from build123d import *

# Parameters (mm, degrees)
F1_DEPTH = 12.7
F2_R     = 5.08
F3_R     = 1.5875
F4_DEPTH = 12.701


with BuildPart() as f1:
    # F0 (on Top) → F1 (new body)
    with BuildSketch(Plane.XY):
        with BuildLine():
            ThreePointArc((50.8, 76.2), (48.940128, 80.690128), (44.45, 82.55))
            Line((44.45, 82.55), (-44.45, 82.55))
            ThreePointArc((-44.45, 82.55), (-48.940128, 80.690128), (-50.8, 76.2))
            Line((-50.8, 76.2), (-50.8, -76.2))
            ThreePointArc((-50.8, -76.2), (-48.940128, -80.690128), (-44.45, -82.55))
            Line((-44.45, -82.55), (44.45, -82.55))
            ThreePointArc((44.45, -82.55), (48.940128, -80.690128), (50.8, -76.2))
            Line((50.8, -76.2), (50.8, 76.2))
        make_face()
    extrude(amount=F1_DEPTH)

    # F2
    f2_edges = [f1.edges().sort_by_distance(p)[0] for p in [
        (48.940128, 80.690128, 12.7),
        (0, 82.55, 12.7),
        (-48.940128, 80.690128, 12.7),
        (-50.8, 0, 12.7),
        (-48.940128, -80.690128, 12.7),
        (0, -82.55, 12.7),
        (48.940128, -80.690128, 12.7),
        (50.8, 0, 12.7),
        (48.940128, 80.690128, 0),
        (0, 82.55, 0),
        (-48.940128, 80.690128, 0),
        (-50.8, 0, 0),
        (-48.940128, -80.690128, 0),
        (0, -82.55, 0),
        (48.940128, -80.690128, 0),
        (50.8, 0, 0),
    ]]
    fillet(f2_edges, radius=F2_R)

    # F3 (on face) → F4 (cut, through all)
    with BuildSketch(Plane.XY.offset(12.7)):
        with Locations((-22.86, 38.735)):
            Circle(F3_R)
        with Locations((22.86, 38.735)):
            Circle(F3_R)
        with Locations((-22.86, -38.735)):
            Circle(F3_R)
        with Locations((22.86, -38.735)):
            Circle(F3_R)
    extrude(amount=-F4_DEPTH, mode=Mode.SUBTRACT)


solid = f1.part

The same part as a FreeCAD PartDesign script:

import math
import FreeCAD as App
import Part
import Sketcher
Q = App.Units.Quantity


def edges_at(feature, points):
    """Names of the edges that pass closest to the given points."""
    edges = feature.Shape.Edges
    near = lambda p: min(range(len(edges)), key=lambda i: edges[i].distToShape(Part.Vertex(*p))[0])
    return sorted({f"Edge{near(p) + 1}" for p in points})

doc = App.newDocument("Part")
body = doc.addObject("PartDesign::Body", "Body")

# Sketch on XY plane
sketch1 = body.newObject("Sketcher::SketchObject", "Sketch")
sketch1.AttachmentSupport = (doc.getObject("XY_Plane"), [""])
sketch1.MapMode = "FlatFace"
sketch1.addGeometry(Part.ArcOfCircle(Part.Circle(App.Vector(44, 76, 0), App.Vector(0, 0, 1), 6), math.radians(0), math.radians(90)), False)
sketch1.addGeometry(Part.LineSegment(App.Vector(44, 83, 0), App.Vector(-44, 83, 0)), False)
sketch1.addGeometry(Part.ArcOfCircle(Part.Circle(App.Vector(-44, 76, 0), App.Vector(0, 0, 1), 6), math.radians(90), math.radians(180)), False)
sketch1.addGeometry(Part.LineSegment(App.Vector(-51, 76, 0), App.Vector(-51, -76, 0)), False)
sketch1.addGeometry(Part.ArcOfCircle(Part.Circle(App.Vector(-44, -76, 0), App.Vector(0, 0, 1), 6), math.radians(-180), math.radians(-90)), False)
sketch1.addGeometry(Part.LineSegment(App.Vector(-44, -83, 0), App.Vector(44, -83, 0)), False)
sketch1.addGeometry(Part.ArcOfCircle(Part.Circle(App.Vector(44, -76, 0), App.Vector(0, 0, 1), 6), math.radians(-90), math.radians(0)), False)
sketch1.addGeometry(Part.LineSegment(App.Vector(51, -76, 0), App.Vector(51, 76, 0)), False)
sketch1.addConstraint(Sketcher.Constraint("Tangent", 0, 2, 1, 1))
sketch1.addConstraint(Sketcher.Constraint("Tangent", 1, 2, 2, 1))
sketch1.addConstraint(Sketcher.Constraint("Tangent", 2, 2, 3, 1))
sketch1.addConstraint(Sketcher.Constraint("Tangent", 3, 2, 4, 1))
sketch1.addConstraint(Sketcher.Constraint("Tangent", 4, 2, 5, 1))
sketch1.addConstraint(Sketcher.Constraint("Tangent", 5, 2, 6, 1))
sketch1.addConstraint(Sketcher.Constraint("Tangent", 6, 2, 7, 1))
sketch1.addConstraint(Sketcher.Constraint("Tangent", 7, 2, 0, 1))
sketch1.addConstraint(Sketcher.Constraint("Horizontal", 1))
sketch1.addConstraint(Sketcher.Constraint("Vertical", 3))
sketch1.addConstraint(Sketcher.Constraint("Horizontal", 5))
sketch1.addConstraint(Sketcher.Constraint("Vertical", 7))
sketch1.addConstraint(Sketcher.Constraint("Equal", 0, 2))
sketch1.addConstraint(Sketcher.Constraint("Equal", 2, 4))
sketch1.addConstraint(Sketcher.Constraint("Equal", 4, 6))
sketch1.addConstraint(Sketcher.Constraint("Symmetric", 0, 3, 4, 3, -1, 1))
sketch1.addConstraint(Sketcher.Constraint("DistanceY", 3, 2, 3, 1, Q("6 in")))
sketch1.addConstraint(Sketcher.Constraint("Radius", 0, Q("0.25 in")))
sketch1.addConstraint(Sketcher.Constraint("DistanceX", 1, 2, 1, 1, Q("3.5 in")))
pad1 = body.newObject("PartDesign::Pad", "Pad")
pad1.Profile = sketch1
pad1.Length = Q("0.5 in")
doc.recompute()

fillet = body.newObject("PartDesign::Fillet", "Fillet")
fillet.Base = (pad1, edges_at(pad1, [
    (48.94, 80.69, 12.7),
    (0, 82.55, 12.7),
    (-48.94, 80.69, 12.7),
    (-50.8, 0, 12.7),
    (-48.94, -80.69, 12.7),
    (0, -82.55, 12.7),
    (48.94, -80.69, 12.7),
    (50.8, 0, 12.7),
    (48.94, 80.69, 0),
    (0, 82.55, 0),
    (-48.94, 80.69, 0),
    (-50.8, 0, 0),
    (-48.94, -80.69, 0),
    (0, -82.55, 0),
    (48.94, -80.69, 0),
    (50.8, 0, 0),
]))
fillet.Radius = Q("0.2 in")

# Sketch on XY plane
sketch2 = body.newObject("Sketcher::SketchObject", "Sketch001")
sketch2.AttachmentSupport = (doc.getObject("XY_Plane"), [""])
sketch2.MapMode = "FlatFace"
sketch2.AttachmentOffset = App.Placement(App.Vector(0, 0, 0.5 * 25.4), App.Rotation())
sketch2.addGeometry(Part.Circle(App.Vector(-22.9, 38.7, 0), App.Vector(0, 0, 1), 1.6), False)
sketch2.addGeometry(Part.Circle(App.Vector(22.9, 38.7, 0), App.Vector(0, 0, 1), 1.6), False)
sketch2.addGeometry(Part.Circle(App.Vector(-22.9, -38.7, 0), App.Vector(0, 0, 1), 1.6), False)
sketch2.addGeometry(Part.Circle(App.Vector(22.9, -38.7, 0), App.Vector(0, 0, 1), 1.6), False)
sketch2.addConstraint(Sketcher.Constraint("Equal", 0, 1))
sketch2.addConstraint(Sketcher.Constraint("Equal", 1, 2))
sketch2.addConstraint(Sketcher.Constraint("Equal", 2, 3))
sketch2.addConstraint(Sketcher.Constraint("Symmetric", 1, 3, 2, 3, -1, 1))
sketch2.addConstraint(Sketcher.Constraint("Symmetric", 0, 3, 3, 3, -1, 1))
sketch2.addConstraint(Sketcher.Constraint("Symmetric", 0, 3, 1, 3, -2))
sketch2.addConstraint(Sketcher.Constraint("Diameter", 0, Q("0.125 in")))
sketch2.addConstraint(Sketcher.Constraint("DistanceX", 0, 3, -1, 1, Q("0.9 in")))
sketch2.addConstraint(Sketcher.Constraint("DistanceY", 2, 3, 0, 3, Q("3.05 in")))
pocket1 = body.newObject("PartDesign::Pocket", "Pocket")
pocket1.Profile = sketch2
pocket1.Type = "ThroughAll"

doc.recompute()
